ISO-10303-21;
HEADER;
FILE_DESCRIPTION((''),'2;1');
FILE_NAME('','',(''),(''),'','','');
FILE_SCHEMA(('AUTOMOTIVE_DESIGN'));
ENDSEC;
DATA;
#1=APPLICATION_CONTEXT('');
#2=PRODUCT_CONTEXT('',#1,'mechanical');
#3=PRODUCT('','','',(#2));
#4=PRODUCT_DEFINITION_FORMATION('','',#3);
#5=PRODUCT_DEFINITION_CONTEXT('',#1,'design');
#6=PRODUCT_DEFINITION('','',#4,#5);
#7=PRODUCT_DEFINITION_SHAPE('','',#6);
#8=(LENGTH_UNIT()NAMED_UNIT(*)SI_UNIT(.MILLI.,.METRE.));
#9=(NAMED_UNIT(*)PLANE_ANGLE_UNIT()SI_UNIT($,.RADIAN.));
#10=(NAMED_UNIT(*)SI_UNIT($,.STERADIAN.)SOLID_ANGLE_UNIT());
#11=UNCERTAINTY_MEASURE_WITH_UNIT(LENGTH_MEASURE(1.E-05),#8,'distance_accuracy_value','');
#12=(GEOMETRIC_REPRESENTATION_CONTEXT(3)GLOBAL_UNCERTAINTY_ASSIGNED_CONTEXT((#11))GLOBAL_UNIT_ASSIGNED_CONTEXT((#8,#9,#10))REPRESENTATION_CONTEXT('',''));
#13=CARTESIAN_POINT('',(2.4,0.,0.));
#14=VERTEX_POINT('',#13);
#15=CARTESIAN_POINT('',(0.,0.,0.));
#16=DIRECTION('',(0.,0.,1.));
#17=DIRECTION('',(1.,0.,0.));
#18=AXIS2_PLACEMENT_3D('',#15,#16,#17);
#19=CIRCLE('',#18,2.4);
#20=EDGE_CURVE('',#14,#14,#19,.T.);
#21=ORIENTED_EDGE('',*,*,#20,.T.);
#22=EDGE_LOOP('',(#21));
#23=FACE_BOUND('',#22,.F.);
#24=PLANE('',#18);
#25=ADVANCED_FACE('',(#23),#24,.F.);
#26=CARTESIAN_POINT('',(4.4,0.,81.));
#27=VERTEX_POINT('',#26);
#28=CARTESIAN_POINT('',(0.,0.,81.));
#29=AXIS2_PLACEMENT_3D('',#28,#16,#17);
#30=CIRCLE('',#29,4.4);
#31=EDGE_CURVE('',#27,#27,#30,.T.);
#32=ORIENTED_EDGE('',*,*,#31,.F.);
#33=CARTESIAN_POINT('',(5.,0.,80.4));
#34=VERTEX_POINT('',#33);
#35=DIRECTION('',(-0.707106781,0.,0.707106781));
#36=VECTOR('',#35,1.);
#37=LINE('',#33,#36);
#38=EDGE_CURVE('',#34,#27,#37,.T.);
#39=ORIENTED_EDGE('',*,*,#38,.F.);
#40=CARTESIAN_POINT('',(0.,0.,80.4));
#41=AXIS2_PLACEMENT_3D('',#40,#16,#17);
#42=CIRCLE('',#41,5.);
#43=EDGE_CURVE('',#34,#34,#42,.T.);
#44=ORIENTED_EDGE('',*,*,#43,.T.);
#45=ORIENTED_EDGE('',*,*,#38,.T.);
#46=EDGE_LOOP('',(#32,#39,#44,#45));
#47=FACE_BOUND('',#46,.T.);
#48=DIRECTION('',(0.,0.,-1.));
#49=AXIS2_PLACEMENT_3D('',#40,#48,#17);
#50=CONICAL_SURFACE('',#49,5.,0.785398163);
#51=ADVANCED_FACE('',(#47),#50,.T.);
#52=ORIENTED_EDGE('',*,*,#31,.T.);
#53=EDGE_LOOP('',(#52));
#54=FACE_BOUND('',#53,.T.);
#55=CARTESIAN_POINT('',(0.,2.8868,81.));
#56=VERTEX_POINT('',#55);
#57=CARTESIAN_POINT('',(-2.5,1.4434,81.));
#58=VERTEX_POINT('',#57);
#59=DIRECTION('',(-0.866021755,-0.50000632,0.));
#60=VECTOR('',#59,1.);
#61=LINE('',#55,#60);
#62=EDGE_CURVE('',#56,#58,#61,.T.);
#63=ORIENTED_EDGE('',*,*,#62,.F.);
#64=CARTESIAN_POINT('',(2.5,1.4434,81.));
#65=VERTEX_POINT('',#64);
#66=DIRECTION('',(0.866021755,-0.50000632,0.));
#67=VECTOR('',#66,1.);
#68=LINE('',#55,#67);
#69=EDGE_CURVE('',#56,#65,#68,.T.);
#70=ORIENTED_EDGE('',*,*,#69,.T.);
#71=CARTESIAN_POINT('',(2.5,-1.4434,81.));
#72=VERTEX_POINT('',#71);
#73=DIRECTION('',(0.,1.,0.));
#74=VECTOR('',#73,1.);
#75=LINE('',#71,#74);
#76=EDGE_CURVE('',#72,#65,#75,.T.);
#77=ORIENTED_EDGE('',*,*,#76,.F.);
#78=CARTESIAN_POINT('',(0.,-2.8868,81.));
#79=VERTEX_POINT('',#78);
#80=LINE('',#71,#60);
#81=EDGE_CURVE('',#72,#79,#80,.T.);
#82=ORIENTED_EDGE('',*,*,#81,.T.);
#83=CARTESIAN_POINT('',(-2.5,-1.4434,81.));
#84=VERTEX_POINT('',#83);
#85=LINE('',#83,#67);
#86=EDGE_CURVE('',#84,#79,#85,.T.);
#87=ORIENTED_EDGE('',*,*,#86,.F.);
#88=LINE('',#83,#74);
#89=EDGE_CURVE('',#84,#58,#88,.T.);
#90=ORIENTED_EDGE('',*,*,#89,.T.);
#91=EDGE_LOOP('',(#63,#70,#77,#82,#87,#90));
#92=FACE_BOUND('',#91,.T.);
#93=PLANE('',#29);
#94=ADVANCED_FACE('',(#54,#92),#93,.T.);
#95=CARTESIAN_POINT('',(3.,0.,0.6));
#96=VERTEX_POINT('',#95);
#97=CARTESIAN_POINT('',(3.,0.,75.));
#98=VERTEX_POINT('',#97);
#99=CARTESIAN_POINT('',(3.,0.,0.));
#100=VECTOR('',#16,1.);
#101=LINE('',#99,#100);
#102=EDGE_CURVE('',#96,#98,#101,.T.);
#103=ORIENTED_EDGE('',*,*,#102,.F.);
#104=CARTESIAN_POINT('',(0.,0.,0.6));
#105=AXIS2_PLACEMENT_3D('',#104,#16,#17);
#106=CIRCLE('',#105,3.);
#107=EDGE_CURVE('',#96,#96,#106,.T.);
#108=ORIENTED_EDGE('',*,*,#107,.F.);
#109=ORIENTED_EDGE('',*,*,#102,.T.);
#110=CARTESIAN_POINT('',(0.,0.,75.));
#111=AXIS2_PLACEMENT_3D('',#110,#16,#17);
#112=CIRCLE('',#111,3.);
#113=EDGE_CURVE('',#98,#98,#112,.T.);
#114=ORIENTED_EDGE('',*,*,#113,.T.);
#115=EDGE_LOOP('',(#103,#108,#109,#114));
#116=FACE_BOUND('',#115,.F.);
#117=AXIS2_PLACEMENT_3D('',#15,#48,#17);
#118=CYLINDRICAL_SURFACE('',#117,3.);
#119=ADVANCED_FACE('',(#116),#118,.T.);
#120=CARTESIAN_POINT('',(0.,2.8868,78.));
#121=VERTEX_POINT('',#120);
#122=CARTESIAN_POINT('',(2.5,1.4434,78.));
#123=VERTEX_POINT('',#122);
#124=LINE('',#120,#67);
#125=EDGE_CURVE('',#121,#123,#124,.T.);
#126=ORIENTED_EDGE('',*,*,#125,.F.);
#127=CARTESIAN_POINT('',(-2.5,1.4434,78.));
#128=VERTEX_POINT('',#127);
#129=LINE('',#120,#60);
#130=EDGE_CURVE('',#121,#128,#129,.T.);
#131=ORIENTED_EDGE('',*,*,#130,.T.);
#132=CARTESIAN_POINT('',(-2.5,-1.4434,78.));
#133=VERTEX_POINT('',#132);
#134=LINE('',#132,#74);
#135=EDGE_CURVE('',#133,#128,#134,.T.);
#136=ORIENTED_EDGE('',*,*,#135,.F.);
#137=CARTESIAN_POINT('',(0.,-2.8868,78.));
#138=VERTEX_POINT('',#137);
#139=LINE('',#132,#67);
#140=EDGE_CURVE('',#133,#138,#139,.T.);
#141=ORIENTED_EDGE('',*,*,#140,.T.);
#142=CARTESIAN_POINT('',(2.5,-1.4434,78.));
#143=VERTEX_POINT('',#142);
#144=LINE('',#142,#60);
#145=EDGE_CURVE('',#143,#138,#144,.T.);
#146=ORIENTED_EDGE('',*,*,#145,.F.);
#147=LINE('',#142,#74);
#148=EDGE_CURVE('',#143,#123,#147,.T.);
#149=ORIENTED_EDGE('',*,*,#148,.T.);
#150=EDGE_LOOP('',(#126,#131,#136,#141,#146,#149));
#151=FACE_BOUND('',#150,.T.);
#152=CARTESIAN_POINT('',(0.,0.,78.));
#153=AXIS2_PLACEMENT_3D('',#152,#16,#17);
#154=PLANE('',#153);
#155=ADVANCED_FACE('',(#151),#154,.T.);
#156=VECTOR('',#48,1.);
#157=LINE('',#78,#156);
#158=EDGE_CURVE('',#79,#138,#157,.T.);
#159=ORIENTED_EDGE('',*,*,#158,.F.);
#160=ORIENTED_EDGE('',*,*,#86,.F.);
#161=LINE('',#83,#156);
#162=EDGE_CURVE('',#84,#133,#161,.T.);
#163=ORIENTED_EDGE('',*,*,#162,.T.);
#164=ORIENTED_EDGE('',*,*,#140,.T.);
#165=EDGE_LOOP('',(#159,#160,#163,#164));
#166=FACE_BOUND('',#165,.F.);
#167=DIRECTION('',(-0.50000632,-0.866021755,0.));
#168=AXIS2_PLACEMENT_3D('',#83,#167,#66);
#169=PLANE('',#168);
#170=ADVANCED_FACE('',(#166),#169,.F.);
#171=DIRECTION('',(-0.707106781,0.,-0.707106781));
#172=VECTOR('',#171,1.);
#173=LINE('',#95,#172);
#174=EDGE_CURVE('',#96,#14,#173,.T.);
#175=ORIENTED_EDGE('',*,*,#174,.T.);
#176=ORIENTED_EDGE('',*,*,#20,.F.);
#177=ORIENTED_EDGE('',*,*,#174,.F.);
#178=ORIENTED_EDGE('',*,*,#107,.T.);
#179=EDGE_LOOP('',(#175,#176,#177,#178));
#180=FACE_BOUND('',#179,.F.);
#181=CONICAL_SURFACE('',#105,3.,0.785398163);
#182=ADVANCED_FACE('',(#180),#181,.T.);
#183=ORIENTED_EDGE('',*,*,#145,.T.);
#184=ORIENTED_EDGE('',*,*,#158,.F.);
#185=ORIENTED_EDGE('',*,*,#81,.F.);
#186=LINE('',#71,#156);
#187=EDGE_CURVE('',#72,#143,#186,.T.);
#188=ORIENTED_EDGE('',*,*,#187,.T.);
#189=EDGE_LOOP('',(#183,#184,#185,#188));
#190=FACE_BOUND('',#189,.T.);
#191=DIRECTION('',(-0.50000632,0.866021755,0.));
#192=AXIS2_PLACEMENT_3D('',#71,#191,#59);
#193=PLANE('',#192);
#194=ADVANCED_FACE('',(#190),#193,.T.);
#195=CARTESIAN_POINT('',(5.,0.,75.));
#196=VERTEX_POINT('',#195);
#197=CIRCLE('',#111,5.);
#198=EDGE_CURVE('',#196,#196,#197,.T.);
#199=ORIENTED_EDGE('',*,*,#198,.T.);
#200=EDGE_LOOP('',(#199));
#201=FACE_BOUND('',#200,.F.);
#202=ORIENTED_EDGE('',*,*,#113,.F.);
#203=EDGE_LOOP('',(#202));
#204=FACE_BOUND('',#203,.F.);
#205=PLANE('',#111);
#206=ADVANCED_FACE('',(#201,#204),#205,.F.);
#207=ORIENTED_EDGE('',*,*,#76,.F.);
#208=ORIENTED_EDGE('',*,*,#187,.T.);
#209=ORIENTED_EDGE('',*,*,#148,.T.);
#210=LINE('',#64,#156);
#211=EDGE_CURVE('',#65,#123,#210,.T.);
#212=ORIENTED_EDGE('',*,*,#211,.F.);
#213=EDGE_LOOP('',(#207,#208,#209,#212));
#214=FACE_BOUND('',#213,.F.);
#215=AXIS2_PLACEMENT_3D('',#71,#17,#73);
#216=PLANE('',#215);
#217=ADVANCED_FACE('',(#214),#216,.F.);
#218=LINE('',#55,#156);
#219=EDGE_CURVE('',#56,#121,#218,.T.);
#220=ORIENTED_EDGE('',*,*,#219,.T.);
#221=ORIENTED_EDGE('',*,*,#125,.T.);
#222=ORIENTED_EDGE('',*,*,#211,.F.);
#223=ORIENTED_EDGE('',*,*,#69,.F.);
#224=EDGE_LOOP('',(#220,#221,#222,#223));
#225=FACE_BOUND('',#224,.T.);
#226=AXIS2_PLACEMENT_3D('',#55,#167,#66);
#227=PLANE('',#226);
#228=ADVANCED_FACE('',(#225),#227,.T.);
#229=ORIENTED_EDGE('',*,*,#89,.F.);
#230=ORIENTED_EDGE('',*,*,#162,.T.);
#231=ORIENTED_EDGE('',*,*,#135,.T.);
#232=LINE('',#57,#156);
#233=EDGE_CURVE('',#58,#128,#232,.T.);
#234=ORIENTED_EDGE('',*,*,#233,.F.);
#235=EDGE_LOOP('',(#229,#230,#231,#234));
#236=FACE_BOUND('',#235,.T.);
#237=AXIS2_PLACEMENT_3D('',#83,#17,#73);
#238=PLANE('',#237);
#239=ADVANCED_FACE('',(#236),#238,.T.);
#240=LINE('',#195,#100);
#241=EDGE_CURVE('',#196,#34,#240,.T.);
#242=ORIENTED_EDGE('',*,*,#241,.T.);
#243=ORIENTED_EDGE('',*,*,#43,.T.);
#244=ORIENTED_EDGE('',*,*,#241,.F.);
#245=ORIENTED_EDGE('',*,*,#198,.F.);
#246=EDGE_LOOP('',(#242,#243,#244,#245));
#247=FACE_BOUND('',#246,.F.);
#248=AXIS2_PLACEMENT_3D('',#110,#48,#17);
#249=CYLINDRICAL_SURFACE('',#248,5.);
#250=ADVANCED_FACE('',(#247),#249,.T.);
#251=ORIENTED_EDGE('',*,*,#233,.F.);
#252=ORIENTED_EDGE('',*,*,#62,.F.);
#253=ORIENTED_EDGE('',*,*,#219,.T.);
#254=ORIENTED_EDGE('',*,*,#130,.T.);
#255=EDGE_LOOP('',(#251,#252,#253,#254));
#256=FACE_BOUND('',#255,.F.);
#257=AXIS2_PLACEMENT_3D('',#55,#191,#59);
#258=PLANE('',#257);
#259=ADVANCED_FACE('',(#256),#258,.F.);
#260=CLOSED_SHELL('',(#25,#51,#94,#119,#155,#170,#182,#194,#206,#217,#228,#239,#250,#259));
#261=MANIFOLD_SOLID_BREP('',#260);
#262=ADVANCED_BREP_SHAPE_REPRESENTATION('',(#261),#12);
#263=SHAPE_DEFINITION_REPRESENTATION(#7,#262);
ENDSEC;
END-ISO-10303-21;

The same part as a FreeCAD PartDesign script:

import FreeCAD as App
import Part
import Sketcher
from FreeCAD import Vector
Q = App.Units.Quantity


def edges_at(feature, points):
    """Names of the edges that pass closest to the given points."""
    edges = feature.Shape.Edges
    near = lambda p: min(range(len(edges)), key=lambda i: edges[i].distToShape(Part.Vertex(*p))[0])
    return sorted({f"Edge{near(p) + 1}" for p in points})

doc = App.newDocument("Part")
body = doc.addObject("PartDesign::Body", "Body")

# Sketch on XY plane
sketch1 = body.newObject("Sketcher::SketchObject", "Sketch")
sketch1.AttachmentSupport = (doc.getObject("XY_Plane"), [""])
sketch1.MapMode = "FlatFace"
sketch1.addGeometry(Part.Circle(Vector(0, 0, 0), Vector(0, 0, 1), 3), False)
sketch1.addConstraint([
    Sketcher.Constraint("Coincident", 0, 3, -1, 1),
    Sketcher.Constraint("Diameter", 0, Q("6 mm")),
])
pad1 = body.newObject("PartDesign::Pad", "Pad")
pad1.Profile = sketch1
pad1.Length = 75

# Sketch on XY plane
sketch2 = body.newObject("Sketcher::SketchObject", "Sketch001")
sketch2.AttachmentSupport = (doc.getObject("XY_Plane"), [""])
sketch2.MapMode = "FlatFace"
sketch2.AttachmentOffset = App.Placement(Vector(0, 0, 75), App.Rotation())
sketch2.addGeometry(Part.Circle(Vector(0, 0, 0), Vector(0, 0, 1), 5), False)
sketch2.addConstraint([
    Sketcher.Constraint("Coincident", 0, 3, -1, 1),
    Sketcher.Constraint("Diameter", 0, Q("10 mm")),
])
pad2 = body.newObject("PartDesign::Pad", "Pad001")
pad2.Profile = sketch2
pad2.Length = 6

# Sketch on XY plane
sketch3 = body.newObject("Sketcher::SketchObject", "Sketch002")
sketch3.AttachmentSupport = (doc.getObject("XY_Plane"), [""])
sketch3.MapMode = "FlatFace"
sketch3.AttachmentOffset = App.Placement(Vector(0, 0, 81), App.Rotation())
sketch3.addGeometry([
    Part.LineSegment(Vector(2.5, 1.4434, 0), Vector(0, 2.8868, 0)),  # 0
    Part.LineSegment(Vector(0, 2.8868, 0), Vector(-2.5, 1.4434, 0)),  # 1
    Part.LineSegment(Vector(-2.5, 1.4434, 0), Vector(-2.5, -1.4434, 0)),  # 2
    Part.LineSegment(Vector(-2.5, -1.4434, 0), Vector(0, -2.8868, 0)),  # 3
    Part.LineSegment(Vector(0, -2.8868, 0), Vector(2.5, -1.4434, 0)),  # 4
    Part.LineSegment(Vector(2.5, -1.4434, 0), Vector(2.5, 1.4434, 0)),  # 5
], False)
sketch3.addConstraint([
    Sketcher.Constraint("Coincident", 0, 2, 1, 1),
    Sketcher.Constraint("Coincident", 1, 2, 2, 1),
    Sketcher.Constraint("Coincident", 2, 2, 3, 1),
    Sketcher.Constraint("Coincident", 3, 2, 4, 1),
    Sketcher.Constraint("Coincident", 4, 2, 5, 1),
    Sketcher.Constraint("Coincident", 5, 2, 0, 1),
    Sketcher.Constraint("Vertical", 2),
    Sketcher.Constraint("Vertical", 5),
    Sketcher.Constraint("Symmetric", 0, 2, 3, 2, -1, 1),
    Sketcher.Constraint("Symmetric", 1, 2, 4, 2, -1, 1),
    Sketcher.Constraint("PointOnObject", 0, 2, -2),
    Sketcher.Constraint("Parallel", 0, 3),
    Sketcher.Constraint("Horizontal", 2, 2, 4, 2),
    Sketcher.Constraint("DistanceX", 2, 2, 4, 2, Q("5 mm")),
    Sketcher.Constraint("Angle", 0, Q("149.9996 deg")),
    Sketcher.Constraint("DistanceY", 2, 2, 2, 1, Q("2.8868 mm")),
])
pocket1 = body.newObject("PartDesign::Pocket", "Pocket")
pocket1.Profile = sketch3
pocket1.Length = 3
doc.recompute()

chamfer = body.newObject("PartDesign::Chamfer", "Chamfer")
chamfer.Base = (pocket1, edges_at(pocket1, [(-5, 0, 81), (-3, 0, 0)]))
chamfer.Size = 0.6

doc.recompute()
